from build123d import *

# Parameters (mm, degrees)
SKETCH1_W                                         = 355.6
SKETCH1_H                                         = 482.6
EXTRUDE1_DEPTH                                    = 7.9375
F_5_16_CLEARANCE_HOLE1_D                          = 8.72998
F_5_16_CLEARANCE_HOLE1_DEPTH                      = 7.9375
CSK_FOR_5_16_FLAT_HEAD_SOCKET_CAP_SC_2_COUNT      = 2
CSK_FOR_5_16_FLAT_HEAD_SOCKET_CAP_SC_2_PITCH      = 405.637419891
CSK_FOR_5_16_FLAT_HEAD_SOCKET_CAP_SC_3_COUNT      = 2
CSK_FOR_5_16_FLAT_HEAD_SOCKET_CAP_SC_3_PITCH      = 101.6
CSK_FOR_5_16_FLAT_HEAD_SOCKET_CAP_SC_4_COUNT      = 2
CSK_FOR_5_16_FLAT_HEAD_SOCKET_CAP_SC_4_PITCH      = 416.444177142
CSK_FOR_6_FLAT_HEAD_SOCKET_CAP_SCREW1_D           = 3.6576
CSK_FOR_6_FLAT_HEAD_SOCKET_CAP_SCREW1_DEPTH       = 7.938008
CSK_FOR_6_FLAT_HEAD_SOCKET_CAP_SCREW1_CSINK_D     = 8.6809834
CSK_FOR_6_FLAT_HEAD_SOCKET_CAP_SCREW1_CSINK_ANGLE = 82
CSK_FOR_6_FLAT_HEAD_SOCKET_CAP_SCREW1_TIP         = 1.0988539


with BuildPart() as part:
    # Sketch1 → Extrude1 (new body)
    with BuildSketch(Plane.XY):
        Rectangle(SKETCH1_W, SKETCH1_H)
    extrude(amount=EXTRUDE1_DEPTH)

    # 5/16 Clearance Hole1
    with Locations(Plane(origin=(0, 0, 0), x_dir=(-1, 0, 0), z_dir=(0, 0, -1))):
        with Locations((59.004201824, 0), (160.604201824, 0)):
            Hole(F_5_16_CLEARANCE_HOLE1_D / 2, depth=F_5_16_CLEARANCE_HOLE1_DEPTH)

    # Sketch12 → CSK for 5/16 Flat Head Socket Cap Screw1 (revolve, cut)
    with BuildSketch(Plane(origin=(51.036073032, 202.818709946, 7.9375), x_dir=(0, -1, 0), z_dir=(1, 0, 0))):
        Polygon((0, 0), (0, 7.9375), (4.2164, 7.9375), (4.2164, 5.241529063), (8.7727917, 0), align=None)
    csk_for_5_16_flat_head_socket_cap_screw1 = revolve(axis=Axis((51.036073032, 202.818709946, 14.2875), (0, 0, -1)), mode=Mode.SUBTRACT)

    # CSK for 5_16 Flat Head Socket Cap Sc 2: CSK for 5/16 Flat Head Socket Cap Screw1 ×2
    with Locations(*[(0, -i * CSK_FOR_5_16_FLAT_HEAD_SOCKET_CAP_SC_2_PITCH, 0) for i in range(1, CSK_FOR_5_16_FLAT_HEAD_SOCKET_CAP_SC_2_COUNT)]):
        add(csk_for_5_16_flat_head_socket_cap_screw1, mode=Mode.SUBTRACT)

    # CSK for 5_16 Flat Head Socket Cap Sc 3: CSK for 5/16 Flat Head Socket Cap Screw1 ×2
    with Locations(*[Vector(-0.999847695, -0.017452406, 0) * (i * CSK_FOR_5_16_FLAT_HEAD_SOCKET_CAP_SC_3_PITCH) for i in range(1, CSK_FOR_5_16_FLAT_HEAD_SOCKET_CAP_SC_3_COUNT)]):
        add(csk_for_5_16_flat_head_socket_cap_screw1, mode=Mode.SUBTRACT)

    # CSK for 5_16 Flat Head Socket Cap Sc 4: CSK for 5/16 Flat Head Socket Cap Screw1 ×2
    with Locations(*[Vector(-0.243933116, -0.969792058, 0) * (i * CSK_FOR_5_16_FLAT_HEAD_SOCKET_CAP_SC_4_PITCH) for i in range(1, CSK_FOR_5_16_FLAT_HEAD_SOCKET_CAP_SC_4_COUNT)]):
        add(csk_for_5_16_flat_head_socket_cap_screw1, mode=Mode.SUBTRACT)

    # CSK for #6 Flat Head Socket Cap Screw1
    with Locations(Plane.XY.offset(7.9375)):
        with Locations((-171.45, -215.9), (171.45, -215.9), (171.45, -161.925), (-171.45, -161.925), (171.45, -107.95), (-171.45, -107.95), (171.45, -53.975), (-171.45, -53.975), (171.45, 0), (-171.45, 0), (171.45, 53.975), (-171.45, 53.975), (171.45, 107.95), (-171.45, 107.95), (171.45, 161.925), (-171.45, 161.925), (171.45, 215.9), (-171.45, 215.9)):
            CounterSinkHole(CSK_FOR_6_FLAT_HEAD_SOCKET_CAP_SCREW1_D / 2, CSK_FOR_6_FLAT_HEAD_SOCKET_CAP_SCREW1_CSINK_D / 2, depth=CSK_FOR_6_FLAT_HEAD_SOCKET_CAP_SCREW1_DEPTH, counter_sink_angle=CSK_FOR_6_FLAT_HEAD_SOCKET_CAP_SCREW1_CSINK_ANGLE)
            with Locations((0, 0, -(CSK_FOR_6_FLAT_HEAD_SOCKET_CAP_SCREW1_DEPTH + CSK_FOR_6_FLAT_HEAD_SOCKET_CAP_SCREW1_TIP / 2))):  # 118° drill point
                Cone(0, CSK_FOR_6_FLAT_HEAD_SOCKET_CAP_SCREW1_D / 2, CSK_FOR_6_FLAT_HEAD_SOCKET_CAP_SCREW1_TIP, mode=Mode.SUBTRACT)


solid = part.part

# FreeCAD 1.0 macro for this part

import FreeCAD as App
import Part
import Sketcher
from FreeCAD import Vector
Q = App.Units.Quantity


def add_polygon(sketch, points):
    """Adds a closed chain of lines whose ends are joined by coincident constraints."""
    first, n = sketch.GeometryCount, len(points)
    for a, b in zip(points, points[1:] + points[:1]):
        sketch.addGeometry(Part.LineSegment(App.Vector(*a, 0), App.Vector(*b, 0)), False)
    for i in range(n):
        sketch.addConstraint(Sketcher.Constraint("Coincident", first + i, 2, first + (i + 1) % n, 1))

doc = App.newDocument("Part")
params = doc.addObject("Spreadsheet::Sheet", "Params")
for row, (alias, value) in enumerate([
    ("sketch1_width", "14 in"),
    ("sketch1_height", "19 in"),
    ("pad1_length", "0.3125 in"),
    ("hole_diameter", "0.3437 in"),
    ("hole_depth", "0.3125 in"),
    ("sketch3_width", "0.166 in"),
    ("sketch3_height", "0.3125 in"),
    ("groove_angle", "360 deg"),
    ("linearpattern_pitch", "405.63742 mm"),
    ("linearpattern2_pitch", "4 in"),
    ("linearpattern3_pitch", "416.444177 mm"),
    ("sketch4_diameter", "0.144 in"),
    ("hole2_diameter", "0.144 in"),
    ("hole2_depth", "7.938008 mm"),
    ("hole2_csink_diameter", "8.680983 mm"),
], start=1):
    params.set(f"A{row}", alias)
    params.set(f"B{row}", "=" + value)
    params.setAlias(f"B{row}", alias)

body = doc.addObject("PartDesign::Body", "Body")

# Sketch on XY plane
sketch1 = doc.addObject("Sketcher::SketchObject", "Sketch")
body.addObject(sketch1)
sketch1.AttachmentSupport = (doc.XY_Plane, [""])
sketch1.MapMode = "FlatFace"
add_polygon(sketch1, [(-178, 241), (-178, -241), (178, -241), (178, 241)])  # lines 0-3
sketch1.addConstraint([
    Sketcher.Constraint("Vertical", 0),
    Sketcher.Constraint("Horizontal", 1),
    Sketcher.Constraint("Vertical", 2),
    Sketcher.Constraint("Horizontal", 3),
    Sketcher.Constraint("Symmetric", 0, 2, 2, 2, -1, 1),
    Sketcher.Constraint("DistanceX", 1, 1, 1, 2, Q("14 in")),
    Sketcher.Constraint("DistanceY", 0, 2, 0, 1, Q("19 in")),
])
sketch1.setExpression("Constraints[9]", "Params.sketch1_width")
sketch1.setExpression("Constraints[10]", "Params.sketch1_height")
pad1 = doc.addObject("PartDesign::Pad", "Pad")
body.addObject(pad1)
pad1.Profile = sketch1
pad1.setExpression("Length", "Params.pad1_length")

# Sketch on XY plane
sketch2 = doc.addObject("Sketcher::SketchObject", "Sketch001")
body.addObject(sketch2)
sketch2.AttachmentSupport = (doc.XY_Plane, [""])
sketch2.MapMode = "FlatFace"
sketch2.addGeometry([
    Part.Circle(Vector(-59, 0, 0), Vector(0, 0, 1), 4.4),
    Part.Circle(Vector(-160.6, 0, 0), Vector(0, 0, 1), 4.4),
], False)
sketch2.addConstraint([
    Sketcher.Constraint("Equal", 0, 1),
    Sketcher.Constraint("PointOnObject", 0, 3, -1),
    Sketcher.Constraint("PointOnObject", 1, 3, -1),
    Sketcher.Constraint("DistanceX", 1, 3, 0, 3, Q("4 in")),
    Sketcher.Constraint("Diameter", 0, Q("0.3437 in")),
    Sketcher.Constraint("DistanceX", 0, 3, -1, 1, Q("2.3230001 in")),
])
doc.recompute()
hole = doc.addObject("PartDesign::Hole", "Hole")
body.addObject(hole)
hole.Profile = sketch2
hole.ThreadType = "None"
hole.setExpression("Diameter", "Params.hole_diameter")
hole.DepthType = "Dimension"
hole.setExpression("Depth", "Params.hole_depth")
hole.DrillPoint = "Flat"
hole.Reversed = True

# Sketch on YZ plane
sketch3 = doc.addObject("Sketcher::SketchObject", "Sketch002")
body.addObject(sketch3)
sketch3.AttachmentSupport = (doc.YZ_Plane, [""])
sketch3.MapMode = "FlatFace"
sketch3.AttachmentOffset = App.Placement(Vector(0, 0, 51.036073), App.Rotation())
add_polygon(sketch3, [(202.8, 0), (202.8, 7.9), (194, 7.9), (198.6, 2.7), (198.6, 0)])  # lines 0-4
sketch3.addGeometry(Part.LineSegment(Vector(202.8, 7.9, 0), Vector(202.8, 0, 0)), True)  # axis
sketch3.addConstraint([
    Sketcher.Constraint("Vertical", 0),
    Sketcher.Constraint("Horizontal", 1),
    Sketcher.Constraint("Vertical", 3),
    Sketcher.Constraint("Horizontal", 4),
    Sketcher.Constraint("Vertical", 5),
    Sketcher.Constraint("Coincident", 5, 1, 0, 2),
    Sketcher.Constraint("PointOnObject", 3, 2, -1),
    Sketcher.Constraint("PointOnObject", 5, 2, -1),
    Sketcher.Constraint("Angle", 2, Q("-49 deg")),
    Sketcher.Constraint("DistanceX", 4, 1, 4, 2, Q("0.166 in")),
    Sketcher.Constraint("DistanceY", 0, 1, 0, 2, Q("0.3125 in")),
    Sketcher.Constraint("DistanceX", 1, 2, 1, 1, Q("8.772792 mm")),
    Sketcher.Constraint("DistanceX", -1, 1, 0, 2, Q("202.81871 mm")),
])
sketch3.setExpression("Constraints[14]", "Params.sketch3_width")
sketch3.setExpression("Constraints[15]", "Params.sketch3_height")
groove = doc.addObject("PartDesign::Groove", "Groove")
body.addObject(groove)
groove.Profile = sketch3
groove.ReferenceAxis = (sketch3, ["Axis0"])
groove.setExpression("Angle", "Params.groove_angle")
doc.recompute()

linearpattern = doc.addObject("PartDesign::LinearPattern", "LinearPattern")
body.addObject(linearpattern)
linearpattern.Originals = [groove]
linearpattern.Direction = (doc.Y_Axis, [""])
linearpattern.Mode = "offset"
linearpattern.setExpression("Offset", "Params.linearpattern_pitch")
linearpattern.Occurrences = 2
linearpattern.Reversed = True
body.Tip = linearpattern
doc.recompute()

datumline = doc.addObject("PartDesign::Line", "DatumLine")
body.addObject(datumline)
datumline.Placement = App.Placement(Vector(0, 0, 0), App.Rotation(Vector(0, 0, 1), Vector(-0.999847695, -0.017452406, 0)))
linearpattern2 = doc.addObject("PartDesign::LinearPattern", "LinearPattern001")
body.addObject(linearpattern2)
linearpattern2.Originals = [groove]
linearpattern2.Direction = (datumline, [""])
linearpattern2.Mode = "offset"
linearpattern2.setExpression("Offset", "Params.linearpattern2_pitch")
linearpattern2.Occurrences = 2
body.Tip = linearpattern2
doc.recompute()

datumline2 = doc.addObject("PartDesign::Line", "DatumLine001")
body.addObject(datumline2)
datumline2.Placement = App.Placement(Vector(0, 0, 0), App.Rotation(Vector(0, 0, 1), Vector(-0.243933116, -0.969792058, 0)))
linearpattern3 = doc.addObject("PartDesign::LinearPattern", "LinearPattern002")
body.addObject(linearpattern3)
linearpattern3.Originals = [groove]
linearpattern3.Direction = (datumline2, [""])
linearpattern3.Mode = "offset"
linearpattern3.setExpression("Offset", "Params.linearpattern3_pitch")
linearpattern3.Occurrences = 2
body.Tip = linearpattern3

# Sketch on XY plane
sketch4 = doc.addObject("Sketcher::SketchObject", "Sketch003")
body.addObject(sketch4)
sketch4.AttachmentSupport = (doc.XY_Plane, [""])
sketch4.MapMode = "FlatFace"
sketch4.AttachmentOffset = App.Placement(Vector(0, 0, 0.3125 * 25.4), App.Rotation())
sketch4.addGeometry([
    Part.Circle(Vector(-171.4, -215.9, 0), Vector(0, 0, 1), 1.8),  # 0
    Part.Circle(Vector(171.4, -215.9, 0), Vector(0, 0, 1), 1.8),  # 1
    Part.Circle(Vector(171.4, -161.9, 0), Vector(0, 0, 1), 1.8),  # 2
    Part.Circle(Vector(-171.4, -161.9, 0), Vector(0, 0, 1), 1.8),  # 3
    Part.Circle(Vector(171.4, -108, 0), Vector(0, 0, 1), 1.8),  # 4
    Part.Circle(Vector(-171.4, -108, 0), Vector(0, 0, 1), 1.8),  # 5
    Part.Circle(Vector(171.4, -54, 0), Vector(0, 0, 1), 1.8),  # 6
    Part.Circle(Vector(-171.4, -54, 0), Vector(0, 0, 1), 1.8),  # 7
    Part.Circle(Vector(171.4, 0, 0), Vector(0, 0, 1), 1.8),  # 8
    Part.Circle(Vector(-171.4, 0, 0), Vector(0, 0, 1), 1.8),  # 9
    Part.Circle(Vector(171.4, 54, 0), Vector(0, 0, 1), 1.8),  # 10
    Part.Circle(Vector(-171.4, 54, 0), Vector(0, 0, 1), 1.8),  # 11
    Part.Circle(Vector(171.4, 108, 0), Vector(0, 0, 1), 1.8),  # 12
    Part.Circle(Vector(-171.4, 108, 0), Vector(0, 0, 1), 1.8),  # 13
    Part.Circle(Vector(171.4, 161.9, 0), Vector(0, 0, 1), 1.8),  # 14
    Part.Circle(Vector(-171.4, 161.9, 0), Vector(0, 0, 1), 1.8),  # 15
    Part.Circle(Vector(171.4, 215.9, 0), Vector(0, 0, 1), 1.8),  # 16
    Part.Circle(Vector(-171.4, 215.9, 0), Vector(0, 0, 1), 1.8),  # 17
], False)
sketch4.addConstraint([
    Sketcher.Constraint("Equal", 0, 1),
    Sketcher.Constraint("Equal", 1, 2),
    Sketcher.Constraint("Equal", 2, 3),
    Sketcher.Constraint("Equal", 3, 4),
    Sketcher.Constraint("Equal", 4, 5),
    Sketcher.Constraint("Equal", 5, 6),
    Sketcher.Constraint("Equal", 6, 7),
    Sketcher.Constraint("Equal", 7, 8),
    Sketcher.Constraint("Equal", 8, 9),
    Sketcher.Constraint("Equal", 9, 10),
    Sketcher.Constraint("Equal", 10, 11),
    Sketcher.Constraint("Equal", 11, 12),
    Sketcher.Constraint("Equal", 12, 13),
    Sketcher.Constraint("Equal", 13, 14),
    Sketcher.Constraint("Equal", 14, 15),
    Sketcher.Constraint("Equal", 15, 16),
    Sketcher.Constraint("Equal", 16, 17),
    Sketcher.Constraint("Symmetric", 8, 3, 9, 3, -1, 1),
    Sketcher.Constraint("Symmetric", 7, 3, 10, 3, -1, 1),
    Sketcher.Constraint("Symmetric", 6, 3, 11, 3, -1, 1),
    Sketcher.Constraint("Symmetric", 5, 3, 12, 3, -1, 1),
    Sketcher.Constraint("Symmetric", 4, 3, 13, 3, -1, 1),
    Sketcher.Constraint("Symmetric", 3, 3, 14, 3, -1, 1),
    Sketcher.Constraint("Symmetric", 2, 3, 15, 3, -1, 1),
    Sketcher.Constraint("Symmetric", 0, 3, 16, 3, -1, 1),
    Sketcher.Constraint("Symmetric", 1, 3, 17, 3, -1, 1),
    Sketcher.Constraint("Symmetric", 0, 3, 1, 3, -2),
    Sketcher.Constraint("Symmetric", 2, 3, 3, 3, -2),
    Sketcher.Constraint("Symmetric", 4, 3, 5, 3, -2),
    Sketcher.Constraint("Symmetric", 6, 3, 7, 3, -2),
    Sketcher.Constraint("PointOnObject", 8, 3, -1),
    Sketcher.Constraint("Vertical", 1, 3, 2, 3),
    Sketcher.Constraint("Vertical", 2, 3, 4, 3),
    Sketcher.Constraint("Vertical", 4, 3, 6, 3),
    Sketcher.Constraint("Vertical", 6, 3, 8, 3),
    Sketcher.Constraint("Diameter", 0, Q("0.144 in")),
    Sketcher.Constraint("DistanceY", 0, 3, -1, 1, Q("8.5 in")),
    Sketcher.Constraint("DistanceX", 0, 3, 1, 3, Q("13.5 in")),
    Sketcher.Constraint("DistanceY", 2, 3, 10, 3, Q("8.5 in")),
    Sketcher.Constraint("DistanceY", 4, 3, 12, 3, Q("8.5 in")),
    Sketcher.Constraint("DistanceY", 2, 3, 6, 3, Q("4.25 in")),
])
sketch4.setExpression("Constraints[35]", "Params.sketch4_diameter")
doc.recompute()
hole2 = doc.addObject("PartDesign::Hole", "Hole001")
body.addObject(hole2)
hole2.Profile = sketch4
hole2.ThreadType = "None"
hole2.setExpression("Diameter", "Params.hole2_diameter")
hole2.DepthType = "Dimension"
hole2.setExpression("Depth", "Params.hole2_depth")
hole2.DrillPoint = "Angled"
hole2.DrillPointAngle = 118
hole2.HoleCutType = "Countersink"
hole2.setExpression("HoleCutDiameter", "Params.hole2_csink_diameter")
hole2.HoleCutCountersinkAngle = 82

doc.recompute()
